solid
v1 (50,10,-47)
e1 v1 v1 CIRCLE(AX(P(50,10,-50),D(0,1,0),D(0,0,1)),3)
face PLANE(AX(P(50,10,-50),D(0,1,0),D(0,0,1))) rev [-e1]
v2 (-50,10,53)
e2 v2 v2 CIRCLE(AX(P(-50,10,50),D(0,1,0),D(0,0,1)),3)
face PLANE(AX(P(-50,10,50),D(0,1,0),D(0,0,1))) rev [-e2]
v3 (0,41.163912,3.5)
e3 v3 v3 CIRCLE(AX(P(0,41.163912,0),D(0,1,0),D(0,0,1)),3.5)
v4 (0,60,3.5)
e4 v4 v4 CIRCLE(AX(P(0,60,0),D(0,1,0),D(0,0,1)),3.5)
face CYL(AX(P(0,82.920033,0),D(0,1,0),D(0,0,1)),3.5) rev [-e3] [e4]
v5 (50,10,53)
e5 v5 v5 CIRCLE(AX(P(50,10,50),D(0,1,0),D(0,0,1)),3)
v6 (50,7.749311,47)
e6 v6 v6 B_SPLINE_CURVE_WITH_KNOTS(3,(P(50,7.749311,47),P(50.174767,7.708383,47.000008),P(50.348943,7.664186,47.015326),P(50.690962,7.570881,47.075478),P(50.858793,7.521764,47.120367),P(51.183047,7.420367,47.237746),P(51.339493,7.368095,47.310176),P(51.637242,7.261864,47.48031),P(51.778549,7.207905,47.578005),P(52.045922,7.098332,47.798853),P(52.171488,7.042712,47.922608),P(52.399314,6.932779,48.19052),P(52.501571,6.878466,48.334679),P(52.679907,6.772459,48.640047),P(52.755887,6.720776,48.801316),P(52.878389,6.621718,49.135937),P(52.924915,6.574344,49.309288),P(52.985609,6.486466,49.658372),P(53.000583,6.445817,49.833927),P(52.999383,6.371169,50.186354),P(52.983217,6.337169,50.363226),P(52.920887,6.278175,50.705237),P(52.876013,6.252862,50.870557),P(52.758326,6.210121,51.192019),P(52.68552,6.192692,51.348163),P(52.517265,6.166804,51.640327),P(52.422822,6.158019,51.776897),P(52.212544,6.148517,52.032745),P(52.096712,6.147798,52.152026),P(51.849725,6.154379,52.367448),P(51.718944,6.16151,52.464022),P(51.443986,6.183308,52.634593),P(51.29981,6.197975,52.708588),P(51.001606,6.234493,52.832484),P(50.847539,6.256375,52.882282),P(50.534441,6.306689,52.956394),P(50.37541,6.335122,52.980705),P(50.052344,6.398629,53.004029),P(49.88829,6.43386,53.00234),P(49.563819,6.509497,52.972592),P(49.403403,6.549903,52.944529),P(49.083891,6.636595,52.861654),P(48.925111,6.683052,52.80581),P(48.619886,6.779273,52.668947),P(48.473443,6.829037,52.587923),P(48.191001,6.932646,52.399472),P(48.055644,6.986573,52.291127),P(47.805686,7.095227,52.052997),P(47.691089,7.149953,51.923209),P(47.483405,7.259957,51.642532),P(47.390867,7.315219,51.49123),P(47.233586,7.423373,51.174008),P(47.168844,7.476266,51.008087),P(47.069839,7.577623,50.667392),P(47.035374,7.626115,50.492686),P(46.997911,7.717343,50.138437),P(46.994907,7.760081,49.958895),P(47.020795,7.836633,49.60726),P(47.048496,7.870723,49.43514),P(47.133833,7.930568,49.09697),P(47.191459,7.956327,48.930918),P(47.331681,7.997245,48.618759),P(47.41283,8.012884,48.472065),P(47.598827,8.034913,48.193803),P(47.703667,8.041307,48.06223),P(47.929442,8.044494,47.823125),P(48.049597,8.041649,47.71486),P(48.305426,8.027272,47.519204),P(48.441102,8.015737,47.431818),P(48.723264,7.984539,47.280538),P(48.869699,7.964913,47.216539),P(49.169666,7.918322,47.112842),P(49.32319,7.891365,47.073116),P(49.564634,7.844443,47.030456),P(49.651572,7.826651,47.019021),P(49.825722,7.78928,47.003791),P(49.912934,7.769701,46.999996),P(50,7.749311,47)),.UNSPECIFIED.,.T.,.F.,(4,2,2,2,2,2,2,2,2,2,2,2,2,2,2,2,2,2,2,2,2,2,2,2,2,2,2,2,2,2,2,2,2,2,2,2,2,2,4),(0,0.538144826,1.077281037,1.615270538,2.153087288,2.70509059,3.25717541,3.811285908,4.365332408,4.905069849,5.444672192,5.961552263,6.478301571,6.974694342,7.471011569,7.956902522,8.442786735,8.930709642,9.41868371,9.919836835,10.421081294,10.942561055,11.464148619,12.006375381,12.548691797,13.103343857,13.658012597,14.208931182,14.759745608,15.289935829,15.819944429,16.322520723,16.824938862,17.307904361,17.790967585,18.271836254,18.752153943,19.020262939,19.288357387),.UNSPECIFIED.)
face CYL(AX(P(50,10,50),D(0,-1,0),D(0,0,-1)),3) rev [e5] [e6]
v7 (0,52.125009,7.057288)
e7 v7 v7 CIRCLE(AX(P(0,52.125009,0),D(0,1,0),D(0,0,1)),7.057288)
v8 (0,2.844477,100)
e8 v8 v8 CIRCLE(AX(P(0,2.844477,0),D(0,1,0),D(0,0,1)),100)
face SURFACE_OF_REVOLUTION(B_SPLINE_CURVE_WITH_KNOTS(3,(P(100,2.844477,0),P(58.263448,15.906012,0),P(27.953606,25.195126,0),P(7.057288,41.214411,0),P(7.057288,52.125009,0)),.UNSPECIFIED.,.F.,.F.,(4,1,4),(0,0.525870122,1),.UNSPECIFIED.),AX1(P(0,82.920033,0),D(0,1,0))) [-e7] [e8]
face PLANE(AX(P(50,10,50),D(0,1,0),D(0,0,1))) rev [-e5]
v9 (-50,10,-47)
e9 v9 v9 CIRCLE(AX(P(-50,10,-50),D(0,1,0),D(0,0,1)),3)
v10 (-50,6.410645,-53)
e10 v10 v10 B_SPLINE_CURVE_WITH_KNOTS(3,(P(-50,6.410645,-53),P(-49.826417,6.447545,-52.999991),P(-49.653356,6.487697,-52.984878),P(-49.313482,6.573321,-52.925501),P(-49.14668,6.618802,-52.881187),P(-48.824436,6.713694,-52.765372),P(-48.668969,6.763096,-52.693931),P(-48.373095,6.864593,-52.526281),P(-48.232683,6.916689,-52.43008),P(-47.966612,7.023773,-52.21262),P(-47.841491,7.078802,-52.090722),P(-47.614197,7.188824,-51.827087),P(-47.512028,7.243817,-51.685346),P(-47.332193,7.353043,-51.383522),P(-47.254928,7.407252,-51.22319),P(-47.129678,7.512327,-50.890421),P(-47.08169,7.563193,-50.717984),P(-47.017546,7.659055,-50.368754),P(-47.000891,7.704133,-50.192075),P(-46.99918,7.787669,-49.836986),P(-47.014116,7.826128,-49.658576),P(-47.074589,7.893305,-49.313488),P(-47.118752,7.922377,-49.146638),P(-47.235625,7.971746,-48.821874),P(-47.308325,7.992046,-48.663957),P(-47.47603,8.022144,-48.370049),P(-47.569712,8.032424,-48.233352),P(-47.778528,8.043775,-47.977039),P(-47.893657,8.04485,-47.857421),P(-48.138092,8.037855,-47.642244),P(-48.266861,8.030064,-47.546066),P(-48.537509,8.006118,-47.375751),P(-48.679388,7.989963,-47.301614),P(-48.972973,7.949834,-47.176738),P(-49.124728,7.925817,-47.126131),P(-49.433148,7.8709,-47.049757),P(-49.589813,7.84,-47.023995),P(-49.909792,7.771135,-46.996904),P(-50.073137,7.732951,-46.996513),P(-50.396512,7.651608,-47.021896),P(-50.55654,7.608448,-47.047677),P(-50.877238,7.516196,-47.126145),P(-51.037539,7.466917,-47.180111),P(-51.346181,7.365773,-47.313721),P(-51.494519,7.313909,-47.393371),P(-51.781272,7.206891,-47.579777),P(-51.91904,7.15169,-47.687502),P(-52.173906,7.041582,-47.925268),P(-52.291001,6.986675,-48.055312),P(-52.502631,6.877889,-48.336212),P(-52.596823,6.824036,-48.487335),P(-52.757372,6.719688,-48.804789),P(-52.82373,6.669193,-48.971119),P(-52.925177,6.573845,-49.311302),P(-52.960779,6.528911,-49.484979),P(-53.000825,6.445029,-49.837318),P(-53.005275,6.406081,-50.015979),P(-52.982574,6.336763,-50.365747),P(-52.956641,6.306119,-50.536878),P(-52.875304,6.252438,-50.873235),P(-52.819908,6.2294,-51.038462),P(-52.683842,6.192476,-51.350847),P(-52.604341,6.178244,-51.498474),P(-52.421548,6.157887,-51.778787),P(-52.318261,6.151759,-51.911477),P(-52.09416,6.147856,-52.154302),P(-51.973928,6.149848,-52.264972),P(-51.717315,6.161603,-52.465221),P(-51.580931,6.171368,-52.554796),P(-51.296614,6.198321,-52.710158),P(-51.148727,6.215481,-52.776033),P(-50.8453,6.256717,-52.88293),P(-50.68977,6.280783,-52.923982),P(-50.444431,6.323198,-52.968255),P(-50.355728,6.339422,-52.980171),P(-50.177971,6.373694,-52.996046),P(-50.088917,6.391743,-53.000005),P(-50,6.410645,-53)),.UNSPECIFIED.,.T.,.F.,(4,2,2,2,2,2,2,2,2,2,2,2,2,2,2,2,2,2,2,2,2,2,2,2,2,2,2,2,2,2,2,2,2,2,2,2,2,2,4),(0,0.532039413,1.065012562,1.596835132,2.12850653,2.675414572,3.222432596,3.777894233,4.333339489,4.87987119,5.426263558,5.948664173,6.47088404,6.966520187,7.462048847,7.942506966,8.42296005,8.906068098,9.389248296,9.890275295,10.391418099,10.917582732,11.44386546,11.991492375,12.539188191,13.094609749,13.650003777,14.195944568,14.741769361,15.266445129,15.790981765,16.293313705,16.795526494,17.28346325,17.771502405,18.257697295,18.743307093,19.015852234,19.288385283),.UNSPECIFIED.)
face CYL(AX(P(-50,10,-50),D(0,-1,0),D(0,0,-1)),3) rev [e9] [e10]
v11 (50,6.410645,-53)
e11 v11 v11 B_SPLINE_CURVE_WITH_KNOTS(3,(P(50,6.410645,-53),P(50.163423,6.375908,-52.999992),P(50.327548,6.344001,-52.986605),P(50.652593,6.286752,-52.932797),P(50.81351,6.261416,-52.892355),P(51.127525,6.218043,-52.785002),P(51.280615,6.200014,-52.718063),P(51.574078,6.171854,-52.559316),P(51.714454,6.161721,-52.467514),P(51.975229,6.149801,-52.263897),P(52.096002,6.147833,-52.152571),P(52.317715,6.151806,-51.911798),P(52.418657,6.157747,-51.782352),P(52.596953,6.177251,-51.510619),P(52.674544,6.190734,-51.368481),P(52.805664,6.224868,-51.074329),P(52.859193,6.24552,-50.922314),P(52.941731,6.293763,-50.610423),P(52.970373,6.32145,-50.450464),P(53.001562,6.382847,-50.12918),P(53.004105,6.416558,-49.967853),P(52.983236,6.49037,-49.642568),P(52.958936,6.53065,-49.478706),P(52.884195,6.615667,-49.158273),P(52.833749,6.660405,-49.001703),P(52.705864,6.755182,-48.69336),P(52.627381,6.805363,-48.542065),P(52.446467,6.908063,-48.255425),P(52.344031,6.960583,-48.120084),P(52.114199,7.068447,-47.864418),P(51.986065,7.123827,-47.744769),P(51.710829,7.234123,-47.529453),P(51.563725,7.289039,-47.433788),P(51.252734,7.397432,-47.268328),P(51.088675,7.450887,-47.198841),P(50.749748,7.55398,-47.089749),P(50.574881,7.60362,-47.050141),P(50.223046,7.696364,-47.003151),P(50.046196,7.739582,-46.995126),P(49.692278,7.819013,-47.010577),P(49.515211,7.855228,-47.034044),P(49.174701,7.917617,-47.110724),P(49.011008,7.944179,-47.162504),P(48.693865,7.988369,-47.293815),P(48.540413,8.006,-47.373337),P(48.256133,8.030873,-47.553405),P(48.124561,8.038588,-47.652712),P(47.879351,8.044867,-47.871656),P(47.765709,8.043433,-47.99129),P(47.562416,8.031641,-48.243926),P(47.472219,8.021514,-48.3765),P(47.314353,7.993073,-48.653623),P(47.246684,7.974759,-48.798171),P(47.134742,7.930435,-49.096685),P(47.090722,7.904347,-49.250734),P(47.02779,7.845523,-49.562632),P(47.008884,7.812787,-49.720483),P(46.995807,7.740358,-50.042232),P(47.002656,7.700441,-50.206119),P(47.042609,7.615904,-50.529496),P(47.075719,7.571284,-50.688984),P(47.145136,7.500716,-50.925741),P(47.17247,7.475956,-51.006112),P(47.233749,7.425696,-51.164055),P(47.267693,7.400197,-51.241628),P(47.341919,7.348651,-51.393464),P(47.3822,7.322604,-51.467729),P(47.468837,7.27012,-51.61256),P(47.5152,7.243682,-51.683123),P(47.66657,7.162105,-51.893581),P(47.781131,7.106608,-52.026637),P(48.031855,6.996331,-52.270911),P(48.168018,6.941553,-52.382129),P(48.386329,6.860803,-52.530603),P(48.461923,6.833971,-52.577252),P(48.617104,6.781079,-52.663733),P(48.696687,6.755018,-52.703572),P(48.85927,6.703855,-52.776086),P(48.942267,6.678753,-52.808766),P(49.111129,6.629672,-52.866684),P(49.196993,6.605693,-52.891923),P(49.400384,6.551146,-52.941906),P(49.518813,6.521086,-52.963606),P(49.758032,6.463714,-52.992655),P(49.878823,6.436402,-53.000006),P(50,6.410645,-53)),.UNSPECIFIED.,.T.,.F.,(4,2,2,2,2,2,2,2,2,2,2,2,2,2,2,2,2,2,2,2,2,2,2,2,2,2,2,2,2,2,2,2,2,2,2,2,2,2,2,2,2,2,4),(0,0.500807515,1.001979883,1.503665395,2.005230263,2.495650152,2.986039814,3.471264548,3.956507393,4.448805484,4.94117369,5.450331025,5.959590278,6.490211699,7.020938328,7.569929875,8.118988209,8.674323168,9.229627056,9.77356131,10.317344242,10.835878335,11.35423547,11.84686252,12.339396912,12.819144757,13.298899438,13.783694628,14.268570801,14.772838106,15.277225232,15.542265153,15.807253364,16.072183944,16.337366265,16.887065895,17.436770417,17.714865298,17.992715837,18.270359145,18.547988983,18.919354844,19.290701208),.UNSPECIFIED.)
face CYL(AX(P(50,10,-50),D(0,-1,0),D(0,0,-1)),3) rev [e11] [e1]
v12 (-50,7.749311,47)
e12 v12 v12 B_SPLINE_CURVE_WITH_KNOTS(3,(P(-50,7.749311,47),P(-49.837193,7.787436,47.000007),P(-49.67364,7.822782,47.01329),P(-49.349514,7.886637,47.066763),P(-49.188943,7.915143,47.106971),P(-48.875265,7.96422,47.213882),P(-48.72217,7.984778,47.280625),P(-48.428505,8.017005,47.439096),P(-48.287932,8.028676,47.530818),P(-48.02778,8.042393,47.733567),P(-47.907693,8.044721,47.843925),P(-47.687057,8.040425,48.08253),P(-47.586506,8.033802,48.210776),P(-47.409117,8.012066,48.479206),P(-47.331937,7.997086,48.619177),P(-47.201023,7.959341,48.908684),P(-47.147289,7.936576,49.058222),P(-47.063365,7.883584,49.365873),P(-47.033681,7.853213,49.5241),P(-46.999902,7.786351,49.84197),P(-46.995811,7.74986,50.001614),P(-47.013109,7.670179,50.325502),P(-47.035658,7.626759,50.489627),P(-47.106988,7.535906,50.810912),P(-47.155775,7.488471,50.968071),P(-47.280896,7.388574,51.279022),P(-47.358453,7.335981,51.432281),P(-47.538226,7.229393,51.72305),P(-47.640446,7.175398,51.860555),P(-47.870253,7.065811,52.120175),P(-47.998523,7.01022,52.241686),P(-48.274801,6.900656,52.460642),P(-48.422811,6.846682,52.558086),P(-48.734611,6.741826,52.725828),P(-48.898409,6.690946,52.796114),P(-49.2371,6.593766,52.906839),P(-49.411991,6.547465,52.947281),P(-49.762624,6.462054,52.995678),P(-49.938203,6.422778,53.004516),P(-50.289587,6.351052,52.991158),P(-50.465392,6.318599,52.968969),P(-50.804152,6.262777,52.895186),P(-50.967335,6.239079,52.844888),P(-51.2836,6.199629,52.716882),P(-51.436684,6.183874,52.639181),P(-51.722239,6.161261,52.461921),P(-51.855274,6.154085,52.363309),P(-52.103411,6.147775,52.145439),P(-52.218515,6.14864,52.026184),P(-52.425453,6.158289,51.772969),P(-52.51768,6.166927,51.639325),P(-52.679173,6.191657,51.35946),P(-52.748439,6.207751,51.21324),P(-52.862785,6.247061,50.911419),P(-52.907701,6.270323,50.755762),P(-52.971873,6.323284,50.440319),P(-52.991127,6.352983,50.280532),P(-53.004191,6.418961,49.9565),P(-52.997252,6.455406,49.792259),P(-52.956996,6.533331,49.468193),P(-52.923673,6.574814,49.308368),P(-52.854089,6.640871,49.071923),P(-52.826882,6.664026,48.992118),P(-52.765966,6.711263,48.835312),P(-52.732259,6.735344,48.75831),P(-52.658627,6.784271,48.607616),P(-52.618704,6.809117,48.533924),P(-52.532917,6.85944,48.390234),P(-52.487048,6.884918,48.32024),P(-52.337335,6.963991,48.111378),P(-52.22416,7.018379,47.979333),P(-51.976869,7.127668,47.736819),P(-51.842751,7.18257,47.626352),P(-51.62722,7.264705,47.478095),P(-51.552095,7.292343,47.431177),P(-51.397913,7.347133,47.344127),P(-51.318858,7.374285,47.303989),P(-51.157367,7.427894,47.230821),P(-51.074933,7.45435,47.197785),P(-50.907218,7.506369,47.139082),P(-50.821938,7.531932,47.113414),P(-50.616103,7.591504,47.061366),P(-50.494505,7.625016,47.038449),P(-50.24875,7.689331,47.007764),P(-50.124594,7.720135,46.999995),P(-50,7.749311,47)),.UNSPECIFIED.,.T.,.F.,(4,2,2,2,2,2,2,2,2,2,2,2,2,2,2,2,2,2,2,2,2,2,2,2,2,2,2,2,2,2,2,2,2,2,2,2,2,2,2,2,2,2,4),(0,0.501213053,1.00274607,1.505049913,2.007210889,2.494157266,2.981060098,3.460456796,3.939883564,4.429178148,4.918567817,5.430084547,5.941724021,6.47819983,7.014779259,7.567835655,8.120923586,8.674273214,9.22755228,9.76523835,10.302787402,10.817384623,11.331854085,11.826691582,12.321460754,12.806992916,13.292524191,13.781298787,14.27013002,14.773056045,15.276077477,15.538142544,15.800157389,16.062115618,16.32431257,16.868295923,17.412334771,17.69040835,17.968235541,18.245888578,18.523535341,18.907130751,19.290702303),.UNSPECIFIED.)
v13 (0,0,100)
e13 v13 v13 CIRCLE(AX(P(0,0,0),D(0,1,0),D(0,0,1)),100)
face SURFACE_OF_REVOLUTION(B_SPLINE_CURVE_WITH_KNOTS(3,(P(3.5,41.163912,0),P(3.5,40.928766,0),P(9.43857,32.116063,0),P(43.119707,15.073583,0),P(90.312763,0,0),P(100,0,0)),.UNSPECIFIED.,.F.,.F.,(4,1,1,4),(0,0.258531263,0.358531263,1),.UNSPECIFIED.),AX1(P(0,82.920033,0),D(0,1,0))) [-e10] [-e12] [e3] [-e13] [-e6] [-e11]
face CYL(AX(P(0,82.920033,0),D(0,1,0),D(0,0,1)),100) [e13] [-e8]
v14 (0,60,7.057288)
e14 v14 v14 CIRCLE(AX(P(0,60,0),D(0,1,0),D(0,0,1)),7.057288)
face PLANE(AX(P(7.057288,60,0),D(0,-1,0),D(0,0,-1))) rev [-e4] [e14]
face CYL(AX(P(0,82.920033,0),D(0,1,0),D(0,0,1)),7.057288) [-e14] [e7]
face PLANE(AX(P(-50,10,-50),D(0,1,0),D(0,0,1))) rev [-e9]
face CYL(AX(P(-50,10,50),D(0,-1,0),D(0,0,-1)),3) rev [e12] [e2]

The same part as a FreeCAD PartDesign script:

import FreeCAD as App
import Part
import Sketcher

doc = App.newDocument("Part")
params = doc.addObject("Spreadsheet::Sheet", "Params")
for row, (alias, value) in enumerate([
    ("revolution_angle", "360 deg"),
    ("sketch2_diameter", "6 mm"),
    ("pocket1_length", "10 mm"),
], start=1):
    params.set(f"A{row}", alias)
    params.set(f"B{row}", "=" + value)
    params.setAlias(f"B{row}", alias)

body = doc.addObject("PartDesign::Body", "Body")

sketch1 = body.newObject("Sketcher::SketchObject", "Sketch")
sketch1.AttachmentSupport = (doc.getObject("XY_Plane"), [""])
sketch1.MapMode = "FlatFace"
sketch1.addGeometry([
    Part.LineSegment(App.Vector(100, 0, 0), App.Vector(100, 2.844477, 0)),
    Part.BSplineCurve([App.Vector(100, 2.844477, 0), App.Vector(58.263448, 15.906012, 0), App.Vector(27.953606, 25.195126, 0), App.Vector(7.057288, 41.214411, 0), App.Vector(7.057288, 52.125009, 0)], [4, 1, 4], [0, 0.525870122, 1], False, 3, [1, 1, 1, 1, 1], False),
    Part.LineSegment(App.Vector(7.057288, 52.125009, 0), App.Vector(7.057288, 60, 0)),
    Part.LineSegment(App.Vector(7.057288, 60, 0), App.Vector(3.5, 60, 0)),
    Part.LineSegment(App.Vector(3.5, 60, 0), App.Vector(3.5, 41.163912, 0)),
    Part.BSplineCurve([App.Vector(100, 0, 0), App.Vector(90.312763, 0, 0), App.Vector(43.119707, 15.073583, 0), App.Vector(9.43857, 32.116063, 0), App.Vector(3.5, 40.928766, 0), App.Vector(3.5, 41.163912, 0)], [4, 1, 1, 4], [0, 0.641468737, 0.741468737, 1], False, 3, [1, 1, 1, 1, 1, 1], False),
], False)
sketch1.addConstraint([
    Sketcher.Constraint("Block", 1),
    Sketcher.Constraint("Block", 5),
    Sketcher.Constraint("Coincident", 0, 2, 1, 1),
    Sketcher.Constraint("Coincident", 1, 2, 2, 1),
    Sketcher.Constraint("Coincident", 2, 2, 3, 1),
    Sketcher.Constraint("Coincident", 3, 2, 4, 1),
    Sketcher.Constraint("Coincident", 4, 2, 5, 2),
    Sketcher.Constraint("Coincident", 5, 1, 0, 1),
    Sketcher.Constraint("Vertical", 2),
    Sketcher.Constraint("Horizontal", 3),
    Sketcher.Constraint("Vertical", 4),
    Sketcher.Constraint("DistanceY", -1, 1, 2, 2, 60.0),
])
revolution = body.newObject("PartDesign::Revolution", "Revolution")
revolution.Profile = sketch1
revolution.ReferenceAxis = (sketch1, ["V_Axis"])
revolution.setExpression("Angle", "Params.revolution_angle")

sketch2 = body.newObject("Sketcher::SketchObject", "Sketch001")
sketch2.AttachmentSupport = (doc.getObject("XZ_Plane"), [""])
sketch2.MapMode = "FlatFace"
sketch2.addGeometry([
    Part.Circle(App.Vector(-50, 50, 0), App.Vector(0, 0, 1), 3),
    Part.Circle(App.Vector(50, 50, 0), App.Vector(0, 0, 1), 3),
    Part.Circle(App.Vector(50, -50, 0), App.Vector(0, 0, 1), 3),
    Part.Circle(App.Vector(-50, -50, 0), App.Vector(0, 0, 1), 3),
], False)
sketch2.addConstraint([
    Sketcher.Constraint("Equal", 0, 1),
    Sketcher.Constraint("Equal", 1, 2),
    Sketcher.Constraint("Equal", 2, 3),
    Sketcher.Constraint("Symmetric", 0, 3, 2, 3, -1, 1),
    Sketcher.Constraint("Symmetric", 1, 3, 3, 3, -1, 1),
    Sketcher.Constraint("Symmetric", 0, 3, 1, 3, -2),
    Sketcher.Constraint("Diameter", 0, 6.0),
    Sketcher.Constraint("DistanceX", 0, 3, -1, 1, 50.0),
    Sketcher.Constraint("DistanceY", -1, 1, 0, 3, 50.0),
])
sketch2.setExpression("Constraints[6]", "Params.sketch2_diameter")
pocket1 = body.newObject("PartDesign::Pocket", "Pocket")
pocket1.Profile = sketch2
pocket1.setExpression("Length", "Params.pocket1_length")

doc.recompute()
